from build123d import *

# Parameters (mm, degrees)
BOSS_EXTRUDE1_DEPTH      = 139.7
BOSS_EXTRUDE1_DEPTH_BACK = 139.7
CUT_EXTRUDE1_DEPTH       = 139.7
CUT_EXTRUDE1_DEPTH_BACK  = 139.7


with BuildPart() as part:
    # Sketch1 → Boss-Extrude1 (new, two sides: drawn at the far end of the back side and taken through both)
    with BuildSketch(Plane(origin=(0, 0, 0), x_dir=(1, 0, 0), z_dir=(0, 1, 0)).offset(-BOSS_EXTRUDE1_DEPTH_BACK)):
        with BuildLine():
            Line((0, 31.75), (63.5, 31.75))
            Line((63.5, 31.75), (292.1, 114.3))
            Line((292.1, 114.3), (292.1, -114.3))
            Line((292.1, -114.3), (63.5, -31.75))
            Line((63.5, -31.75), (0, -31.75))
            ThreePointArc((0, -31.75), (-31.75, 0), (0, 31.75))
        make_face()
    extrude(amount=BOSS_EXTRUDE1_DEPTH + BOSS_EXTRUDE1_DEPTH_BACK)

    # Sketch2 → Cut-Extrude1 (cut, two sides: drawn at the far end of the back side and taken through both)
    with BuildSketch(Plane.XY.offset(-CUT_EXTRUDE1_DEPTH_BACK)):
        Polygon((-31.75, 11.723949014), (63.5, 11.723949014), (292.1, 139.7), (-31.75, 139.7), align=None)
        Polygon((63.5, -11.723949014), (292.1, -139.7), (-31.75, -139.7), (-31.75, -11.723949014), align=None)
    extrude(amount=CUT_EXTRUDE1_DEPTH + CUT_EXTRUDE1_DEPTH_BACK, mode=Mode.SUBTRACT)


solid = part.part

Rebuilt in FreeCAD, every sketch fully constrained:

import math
import FreeCAD as App
import Part
import Sketcher
from FreeCAD import Vector
Q = App.Units.Quantity

doc = App.newDocument("Part")
params = doc.addObject("Spreadsheet::Sheet", "Params")
for row, (alias, value) in enumerate([
    ("sketch1_height", "9 in"),
    ("sketch1_radius", "1.25 in"),
    ("sketch1_width", "2.5 in"),
    ("pad1_length", "5.5 in"),
    ("pad1_length2", "5.5 in"),
    ("sketch2_width", "3.75 in"),
], start=1):
    params.set(f"A{row}", alias)
    params.set(f"B{row}", "=" + value)
    params.setAlias(f"B{row}", alias)

body = doc.addObject("PartDesign::Body", "Body")

# Sketch on XZ plane
sketch1 = body.newObject("Sketcher::SketchObject", "Sketch")
sketch1.AttachmentSupport = (doc.getObject("XZ_Plane"), [""])
sketch1.MapMode = "FlatFace"
sketch1.addGeometry([
    Part.LineSegment(Vector(63.5, -31.75, 0), Vector(0, -31.75, 0)),  # 0
    Part.ArcOfCircle(Part.Circle(Vector(0, 0, 0), Vector(0, 0, 1), 31.75), math.radians(90), math.radians(270)),  # 1
    Part.LineSegment(Vector(0, 31.75, 0), Vector(63.5, 31.75, 0)),  # 2
    Part.LineSegment(Vector(63.5, 31.75, 0), Vector(292.1, 114.3, 0)),  # 3
    Part.LineSegment(Vector(292.1, 114.3, 0), Vector(292.1, -114.3, 0)),  # 4
    Part.LineSegment(Vector(292.1, -114.3, 0), Vector(63.5, -31.75, 0)),  # 5
], False)
sketch1.addConstraint([
    Sketcher.Constraint("Tangent", 0, 2, 1, 2),
    Sketcher.Constraint("Tangent", 1, 1, 2, 1),
    Sketcher.Constraint("Coincident", 2, 2, 3, 1),
    Sketcher.Constraint("Coincident", 3, 2, 4, 1),
    Sketcher.Constraint("Coincident", 4, 2, 5, 1),
    Sketcher.Constraint("Coincident", 5, 2, 0, 1),
    Sketcher.Constraint("Horizontal", 0),
    Sketcher.Constraint("Horizontal", 2),
    Sketcher.Constraint("Vertical", 4),
    Sketcher.Constraint("Coincident", 1, 3, -1, 1),
    Sketcher.Constraint("Vertical", 2, 2, 5, 2),
    Sketcher.Constraint("Equal", 3, 5),
    Sketcher.Constraint("DistanceY", 4, 2, 4, 1, Q("9 in")),
    Sketcher.Constraint("Radius", 1, Q("1.25 in")),
    Sketcher.Constraint("DistanceX", 0, 2, 0, 1, Q("2.5 in")),
    Sketcher.Constraint("DistanceX", 2, 2, 3, 2, Q("9 in")),
])
sketch1.setExpression("Constraints[12]", "Params.sketch1_height")
sketch1.setExpression("Constraints[13]", "Params.sketch1_radius")
sketch1.setExpression("Constraints[14]", "Params.sketch1_width")
pad1 = body.newObject("PartDesign::Pad", "Pad")
pad1.Profile = sketch1
pad1.Type = "TwoLengths"
pad1.setExpression("Length", "Params.pad1_length")
pad1.setExpression("Length2", "Params.pad1_length2")
pad1.Reversed = True

# Sketch on XY plane
sketch2 = body.newObject("Sketcher::SketchObject", "Sketch001")
sketch2.AttachmentSupport = (doc.getObject("XY_Plane"), [""])
sketch2.MapMode = "FlatFace"
sketch2.addGeometry([
    Part.LineSegment(Vector(-31.75, 11.723949, 0), Vector(63.5, 11.723949, 0)),  # 0
    Part.LineSegment(Vector(63.5, 11.723949, 0), Vector(292.1, 139.7, 0)),  # 1
    Part.LineSegment(Vector(292.1, 139.7, 0), Vector(-31.75, 139.7, 0)),  # 2
    Part.LineSegment(Vector(-31.75, 139.7, 0), Vector(-31.75, 11.723949, 0)),  # 3
    Part.LineSegment(Vector(292.1, -139.7, 0), Vector(63.5, -11.723949, 0)),  # 4
    Part.LineSegment(Vector(63.5, -11.723949, 0), Vector(-31.75, -11.723949, 0)),  # 5
    Part.LineSegment(Vector(-31.75, -11.723949, 0), Vector(-31.75, -139.7, 0)),  # 6
    Part.LineSegment(Vector(-31.75, -139.7, 0), Vector(292.1, -139.7, 0)),  # 7
], False)
sketch2.addConstraint([
    Sketcher.Constraint("Coincident", 0, 2, 1, 1),
    Sketcher.Constraint("Coincident", 1, 2, 2, 1),
    Sketcher.Constraint("Coincident", 2, 2, 3, 1),
    Sketcher.Constraint("Coincident", 3, 2, 0, 1),
    Sketcher.Constraint("Coincident", 4, 2, 5, 1),
    Sketcher.Constraint("Coincident", 5, 2, 6, 1),
    Sketcher.Constraint("Coincident", 6, 2, 7, 1),
    Sketcher.Constraint("Coincident", 7, 2, 4, 1),
    Sketcher.Constraint("Horizontal", 0),
    Sketcher.Constraint("Horizontal", 2),
    Sketcher.Constraint("Vertical", 3),
    Sketcher.Constraint("Horizontal", 5),
    Sketcher.Constraint("Vertical", 6),
    Sketcher.Constraint("Horizontal", 7),
    Sketcher.Constraint("Symmetric", 0, 2, 4, 2, -1),
    Sketcher.Constraint("Symmetric", 2, 2, 6, 2, -1),
    Sketcher.Constraint("Vertical", 1, 2, 7, 2),
    Sketcher.Constraint("DistanceX", 0, 2, 1, 2, Q("9 in")),
    Sketcher.Constraint("DistanceY", 6, 2, 2, 2, Q("11 in")),
    Sketcher.Constraint("DistanceX", 0, 1, 0, 2, Q("3.75 in")),
    Sketcher.Constraint("DistanceX", -1, 1, 0, 2, Q("2.5 in")),
    Sketcher.Constraint("DistanceY", 3, 2, 3, 1, 127.976051),
])
sketch2.setExpression("Constraints[19]", "Params.sketch2_width")
pocket1 = body.newObject("PartDesign::Pocket", "Pocket")
pocket1.Profile = sketch2
pocket1.Type = "ThroughAll"
pocket1.Midplane = True

doc.recompute()
